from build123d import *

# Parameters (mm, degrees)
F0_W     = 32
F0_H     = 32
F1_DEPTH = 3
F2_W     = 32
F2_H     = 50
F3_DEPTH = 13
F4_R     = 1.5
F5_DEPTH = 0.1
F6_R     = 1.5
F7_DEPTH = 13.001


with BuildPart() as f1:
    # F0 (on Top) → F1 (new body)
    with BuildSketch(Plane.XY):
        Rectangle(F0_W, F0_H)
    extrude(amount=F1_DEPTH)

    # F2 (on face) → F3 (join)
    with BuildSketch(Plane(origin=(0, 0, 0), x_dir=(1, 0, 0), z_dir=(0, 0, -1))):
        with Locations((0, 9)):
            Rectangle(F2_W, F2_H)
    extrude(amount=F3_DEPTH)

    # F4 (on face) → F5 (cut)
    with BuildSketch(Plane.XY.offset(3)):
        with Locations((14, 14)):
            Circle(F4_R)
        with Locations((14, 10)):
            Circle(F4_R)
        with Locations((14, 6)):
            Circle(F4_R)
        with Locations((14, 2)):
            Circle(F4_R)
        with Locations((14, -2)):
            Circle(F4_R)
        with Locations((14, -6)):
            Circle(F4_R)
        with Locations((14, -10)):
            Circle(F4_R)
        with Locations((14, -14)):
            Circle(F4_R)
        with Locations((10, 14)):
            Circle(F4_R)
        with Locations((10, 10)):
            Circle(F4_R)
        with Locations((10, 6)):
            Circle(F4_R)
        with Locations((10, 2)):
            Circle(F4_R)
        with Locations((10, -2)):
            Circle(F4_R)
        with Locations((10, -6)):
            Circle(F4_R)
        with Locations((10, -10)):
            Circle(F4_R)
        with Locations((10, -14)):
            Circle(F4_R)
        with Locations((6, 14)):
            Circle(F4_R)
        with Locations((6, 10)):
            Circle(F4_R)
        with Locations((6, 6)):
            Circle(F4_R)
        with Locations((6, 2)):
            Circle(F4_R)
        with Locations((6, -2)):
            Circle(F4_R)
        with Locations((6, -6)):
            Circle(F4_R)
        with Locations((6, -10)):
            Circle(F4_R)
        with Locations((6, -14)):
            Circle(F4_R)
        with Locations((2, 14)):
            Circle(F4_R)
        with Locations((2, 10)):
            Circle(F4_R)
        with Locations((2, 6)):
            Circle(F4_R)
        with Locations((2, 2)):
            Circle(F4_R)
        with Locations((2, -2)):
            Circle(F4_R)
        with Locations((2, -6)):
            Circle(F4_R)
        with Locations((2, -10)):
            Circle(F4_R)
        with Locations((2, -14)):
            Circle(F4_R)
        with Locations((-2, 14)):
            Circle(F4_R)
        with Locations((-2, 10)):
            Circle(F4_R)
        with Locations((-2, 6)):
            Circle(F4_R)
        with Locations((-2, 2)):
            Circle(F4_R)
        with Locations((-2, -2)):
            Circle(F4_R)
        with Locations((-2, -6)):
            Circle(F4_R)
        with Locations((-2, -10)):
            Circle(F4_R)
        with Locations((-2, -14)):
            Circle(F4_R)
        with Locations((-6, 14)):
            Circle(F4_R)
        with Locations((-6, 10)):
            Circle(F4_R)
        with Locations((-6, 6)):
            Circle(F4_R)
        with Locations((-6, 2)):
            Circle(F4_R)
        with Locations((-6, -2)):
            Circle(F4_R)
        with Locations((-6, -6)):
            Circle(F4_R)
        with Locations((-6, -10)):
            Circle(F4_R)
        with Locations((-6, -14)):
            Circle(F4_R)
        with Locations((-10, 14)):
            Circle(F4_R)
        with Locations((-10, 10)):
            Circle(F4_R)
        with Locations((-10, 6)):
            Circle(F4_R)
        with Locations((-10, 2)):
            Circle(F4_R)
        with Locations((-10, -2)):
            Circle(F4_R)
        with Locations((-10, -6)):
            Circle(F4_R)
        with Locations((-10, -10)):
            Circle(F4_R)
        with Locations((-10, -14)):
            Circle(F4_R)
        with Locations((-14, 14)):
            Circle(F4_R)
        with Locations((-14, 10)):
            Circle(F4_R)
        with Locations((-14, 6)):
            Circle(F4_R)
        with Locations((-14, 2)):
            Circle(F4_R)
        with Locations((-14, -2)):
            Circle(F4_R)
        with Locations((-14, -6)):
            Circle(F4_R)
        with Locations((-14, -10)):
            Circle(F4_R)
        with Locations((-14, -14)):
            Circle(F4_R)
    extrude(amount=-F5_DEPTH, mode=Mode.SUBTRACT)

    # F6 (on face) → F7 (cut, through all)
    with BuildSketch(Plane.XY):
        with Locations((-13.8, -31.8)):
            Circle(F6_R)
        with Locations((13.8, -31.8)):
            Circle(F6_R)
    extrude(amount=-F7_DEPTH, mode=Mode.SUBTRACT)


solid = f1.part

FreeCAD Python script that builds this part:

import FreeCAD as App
import Part
import Sketcher
Q = App.Units.Quantity


def add_polygon(sketch, points):
    """Adds a closed chain of lines whose ends are joined by coincident constraints."""
    first, n = sketch.GeometryCount, len(points)
    for a, b in zip(points, points[1:] + points[:1]):
        sketch.addGeometry(Part.LineSegment(App.Vector(*a, 0), App.Vector(*b, 0)), False)
    for i in range(n):
        sketch.addConstraint(Sketcher.Constraint("Coincident", first + i, 2, first + (i + 1) % n, 1))

doc = App.newDocument("Part")
params = doc.addObject("Spreadsheet::Sheet", "Params")
for row, (alias, value) in enumerate([
    ("sketch1_width", "32 mm"),
    ("pad1_length", "3 mm"),
    ("sketch2_width", "32 mm"),
    ("sketch2_height", "50 mm"),
    ("pad2_length", "13 mm"),
    ("sketch3_diameter", "3 mm"),
    ("pocket1_length", "0.1 mm"),
    ("sketch4_diameter", "3 mm"),
], start=1):
    params.set(f"A{row}", alias)
    params.set(f"B{row}", "=" + value)
    params.setAlias(f"B{row}", alias)

body = doc.addObject("PartDesign::Body", "Body")

# Sketch on XY plane
sketch1 = body.newObject("Sketcher::SketchObject", "Sketch")
sketch1.AttachmentSupport = (doc.getObject("XY_Plane"), [""])
sketch1.MapMode = "FlatFace"
add_polygon(sketch1, [(-16, 16), (-16, -16), (16, -16), (16, 16)])  # lines 0-3
sketch1.addConstraint([
    Sketcher.Constraint("Vertical", 0),
    Sketcher.Constraint("Horizontal", 1),
    Sketcher.Constraint("Vertical", 2),
    Sketcher.Constraint("Horizontal", 3),
    Sketcher.Constraint("Symmetric", 0, 2, 2, 2, -1, 1),
    Sketcher.Constraint("Equal", 3, 0),
    Sketcher.Constraint("DistanceX", 1, 1, 1, 2, Q("32 mm")),
])
sketch1.setExpression("Constraints[10]", "Params.sketch1_width")
pad1 = body.newObject("PartDesign::Pad", "Pad")
pad1.Profile = sketch1
pad1.setExpression("Length", "Params.pad1_length")

# Sketch on XY plane
sketch2 = body.newObject("Sketcher::SketchObject", "Sketch001")
sketch2.AttachmentSupport = (doc.getObject("XY_Plane"), [""])
sketch2.MapMode = "FlatFace"
add_polygon(sketch2, [(-16, -34), (-16, 16), (16, 16), (16, -34)])  # lines 0-3
sketch2.addConstraint([
    Sketcher.Constraint("Vertical", 0),
    Sketcher.Constraint("Horizontal", 1),
    Sketcher.Constraint("Vertical", 2),
    Sketcher.Constraint("Horizontal", 3),
    Sketcher.Constraint("DistanceX", 1, 1, 1, 2, Q("32 mm")),
    Sketcher.Constraint("DistanceY", 0, 1, 0, 2, Q("50 mm")),
    Sketcher.Constraint("DistanceX", 0, 2, -1, 1, Q("16 mm")),
    Sketcher.Constraint("DistanceY", -1, 1, 0, 2, Q("16 mm")),
])
sketch2.setExpression("Constraints[8]", "Params.sketch2_width")
sketch2.setExpression("Constraints[9]", "Params.sketch2_height")
pad2 = body.newObject("PartDesign::Pad", "Pad001")
pad2.Profile = sketch2
pad2.setExpression("Length", "Params.pad2_length")
pad2.Reversed = True

# Sketch on XY plane
sketch3 = body.newObject("Sketcher::SketchObject", "Sketch002")
sketch3.AttachmentSupport = (doc.getObject("XY_Plane"), [""])
sketch3.MapMode = "FlatFace"
sketch3.AttachmentOffset = App.Placement(App.Vector(0, 0, 3), App.Rotation())
sketch3.addGeometry([
    Part.Circle(App.Vector(14, 14, 0), App.Vector(0, 0, 1), 1.5),  # 0
    Part.Circle(App.Vector(14, 10, 0), App.Vector(0, 0, 1), 1.5),  # 1
    Part.Circle(App.Vector(14, 6, 0), App.Vector(0, 0, 1), 1.5),  # 2
    Part.Circle(App.Vector(14, 2, 0), App.Vector(0, 0, 1), 1.5),  # 3
    Part.Circle(App.Vector(14, -2, 0), App.Vector(0, 0, 1), 1.5),  # 4
    Part.Circle(App.Vector(14, -6, 0), App.Vector(0, 0, 1), 1.5),  # 5
    Part.Circle(App.Vector(14, -10, 0), App.Vector(0, 0, 1), 1.5),  # 6
    Part.Circle(App.Vector(14, -14, 0), App.Vector(0, 0, 1), 1.5),  # 7
    Part.Circle(App.Vector(10, 14, 0), App.Vector(0, 0, 1), 1.5),  # 8
    Part.Circle(App.Vector(10, 10, 0), App.Vector(0, 0, 1), 1.5),  # 9
    Part.Circle(App.Vector(10, 6, 0), App.Vector(0, 0, 1), 1.5),  # 10
    Part.Circle(App.Vector(10, 2, 0), App.Vector(0, 0, 1), 1.5),  # 11
    Part.Circle(App.Vector(10, -2, 0), App.Vector(0, 0, 1), 1.5),  # 12
    Part.Circle(App.Vector(10, -6, 0), App.Vector(0, 0, 1), 1.5),  # 13
    Part.Circle(App.Vector(10, -10, 0), App.Vector(0, 0, 1), 1.5),  # 14
    Part.Circle(App.Vector(10, -14, 0), App.Vector(0, 0, 1), 1.5),  # 15
    Part.Circle(App.Vector(6, 14, 0), App.Vector(0, 0, 1), 1.5),  # 16
    Part.Circle(App.Vector(6, 10, 0), App.Vector(0, 0, 1), 1.5),  # 17
    Part.Circle(App.Vector(6, 6, 0), App.Vector(0, 0, 1), 1.5),  # 18
    Part.Circle(App.Vector(6, 2, 0), App.Vector(0, 0, 1), 1.5),  # 19
    Part.Circle(App.Vector(6, -2, 0), App.Vector(0, 0, 1), 1.5),  # 20
    Part.Circle(App.Vector(6, -6, 0), App.Vector(0, 0, 1), 1.5),  # 21
    Part.Circle(App.Vector(6, -10, 0), App.Vector(0, 0, 1), 1.5),  # 22
    Part.Circle(App.Vector(6, -14, 0), App.Vector(0, 0, 1), 1.5),  # 23
    Part.Circle(App.Vector(2, 14, 0), App.Vector(0, 0, 1), 1.5),  # 24
    Part.Circle(App.Vector(2, 10, 0), App.Vector(0, 0, 1), 1.5),  # 25
    Part.Circle(App.Vector(2, 6, 0), App.Vector(0, 0, 1), 1.5),  # 26
    Part.Circle(App.Vector(2, 2, 0), App.Vector(0, 0, 1), 1.5),  # 27
    Part.Circle(App.Vector(2, -2, 0), App.Vector(0, 0, 1), 1.5),  # 28
    Part.Circle(App.Vector(2, -6, 0), App.Vector(0, 0, 1), 1.5),  # 29
    Part.Circle(App.Vector(2, -10, 0), App.Vector(0, 0, 1), 1.5),  # 30
    Part.Circle(App.Vector(2, -14, 0), App.Vector(0, 0, 1), 1.5),  # 31
    Part.Circle(App.Vector(-2, 14, 0), App.Vector(0, 0, 1), 1.5),  # 32
    Part.Circle(App.Vector(-2, 10, 0), App.Vector(0, 0, 1), 1.5),  # 33
    Part.Circle(App.Vector(-2, 6, 0), App.Vector(0, 0, 1), 1.5),  # 34
    Part.Circle(App.Vector(-2, 2, 0), App.Vector(0, 0, 1), 1.5),  # 35
    Part.Circle(App.Vector(-2, -2, 0), App.Vector(0, 0, 1), 1.5),  # 36
    Part.Circle(App.Vector(-2, -6, 0), App.Vector(0, 0, 1), 1.5),  # 37
    Part.Circle(App.Vector(-2, -10, 0), App.Vector(0, 0, 1), 1.5),  # 38
    Part.Circle(App.Vector(-2, -14, 0), App.Vector(0, 0, 1), 1.5),  # 39
    Part.Circle(App.Vector(-6, 14, 0), App.Vector(0, 0, 1), 1.5),  # 40
    Part.Circle(App.Vector(-6, 10, 0), App.Vector(0, 0, 1), 1.5),  # 41
    Part.Circle(App.Vector(-6, 6, 0), App.Vector(0, 0, 1), 1.5),  # 42
    Part.Circle(App.Vector(-6, 2, 0), App.Vector(0, 0, 1), 1.5),  # 43
    Part.Circle(App.Vector(-6, -2, 0), App.Vector(0, 0, 1), 1.5),  # 44
    Part.Circle(App.Vector(-6, -6, 0), App.Vector(0, 0, 1), 1.5),  # 45
    Part.Circle(App.Vector(-6, -10, 0), App.Vector(0, 0, 1), 1.5),  # 46
    Part.Circle(App.Vector(-6, -14, 0), App.Vector(0, 0, 1), 1.5),  # 47
    Part.Circle(App.Vector(-10, 14, 0), App.Vector(0, 0, 1), 1.5),  # 48
    Part.Circle(App.Vector(-10, 10, 0), App.Vector(0, 0, 1), 1.5),  # 49
    Part.Circle(App.Vector(-10, 6, 0), App.Vector(0, 0, 1), 1.5),  # 50
    Part.Circle(App.Vector(-10, 2, 0), App.Vector(0, 0, 1), 1.5),  # 51
    Part.Circle(App.Vector(-10, -2, 0), App.Vector(0, 0, 1), 1.5),  # 52
    Part.Circle(App.Vector(-10, -6, 0), App.Vector(0, 0, 1), 1.5),  # 53
    Part.Circle(App.Vector(-10, -10, 0), App.Vector(0, 0, 1), 1.5),  # 54
    Part.Circle(App.Vector(-10, -14, 0), App.Vector(0, 0, 1), 1.5),  # 55
    Part.Circle(App.Vector(-14, 14, 0), App.Vector(0, 0, 1), 1.5),  # 56
    Part.Circle(App.Vector(-14, 10, 0), App.Vector(0, 0, 1), 1.5),  # 57
    Part.Circle(App.Vector(-14, 6, 0), App.Vector(0, 0, 1), 1.5),  # 58
    Part.Circle(App.Vector(-14, 2, 0), App.Vector(0, 0, 1), 1.5),  # 59
    Part.Circle(App.Vector(-14, -2, 0), App.Vector(0, 0, 1), 1.5),  # 60
    Part.Circle(App.Vector(-14, -6, 0), App.Vector(0, 0, 1), 1.5),  # 61
    Part.Circle(App.Vector(-14, -10, 0), App.Vector(0, 0, 1), 1.5),  # 62
    Part.Circle(App.Vector(-14, -14, 0), App.Vector(0, 0, 1), 1.5),  # 63
], False)
sketch3.addConstraint([
    Sketcher.Constraint("Equal", 0, 1),
    Sketcher.Constraint("Equal", 1, 2),
    Sketcher.Constraint("Equal", 2, 3),
    Sketcher.Constraint("Equal", 3, 4),
    Sketcher.Constraint("Equal", 4, 5),
    Sketcher.Constraint("Equal", 5, 6),
    Sketcher.Constraint("Equal", 6, 7),
    Sketcher.Constraint("Equal", 7, 8),
    Sketcher.Constraint("Equal", 8, 9),
    Sketcher.Constraint("Equal", 9, 10),
    Sketcher.Constraint("Equal", 10, 11),
    Sketcher.Constraint("Equal", 11, 12),
    Sketcher.Constraint("Equal", 12, 13),
    Sketcher.Constraint("Equal", 13, 14),
    Sketcher.Constraint("Equal", 14, 15),
    Sketcher.Constraint("Equal", 15, 16),
    Sketcher.Constraint("Equal", 16, 17),
    Sketcher.Constraint("Equal", 17, 18),
    Sketcher.Constraint("Equal", 18, 19),
    Sketcher.Constraint("Equal", 19, 20),
    Sketcher.Constraint("Equal", 20, 21),
    Sketcher.Constraint("Equal", 21, 22),
    Sketcher.Constraint("Equal", 22, 23),
    Sketcher.Constraint("Equal", 23, 24),
    Sketcher.Constraint("Equal", 24, 25),
    Sketcher.Constraint("Equal", 25, 26),
    Sketcher.Constraint("Equal", 26, 27),
    Sketcher.Constraint("Equal", 27, 28),
    Sketcher.Constraint("Equal", 28, 29),
    Sketcher.Constraint("Equal", 29, 30),
    Sketcher.Constraint("Equal", 30, 31),
    Sketcher.Constraint("Equal", 31, 32),
    Sketcher.Constraint("Equal", 32, 33),
    Sketcher.Constraint("Equal", 33, 34),
    Sketcher.Constraint("Equal", 34, 35),
    Sketcher.Constraint("Equal", 35, 36),
    Sketcher.Constraint("Equal", 36, 37),
    Sketcher.Constraint("Equal", 37, 38),
    Sketcher.Constraint("Equal", 38, 39),
    Sketcher.Constraint("Equal", 39, 40),
    Sketcher.Constraint("Equal", 40, 41),
    Sketcher.Constraint("Equal", 41, 42),
    Sketcher.Constraint("Equal", 42, 43),
    Sketcher.Constraint("Equal", 43, 44),
    Sketcher.Constraint("Equal", 44, 45),
    Sketcher.Constraint("Equal", 45, 46),
    Sketcher.Constraint("Equal", 46, 47),
    Sketcher.Constraint("Equal", 47, 48),
    Sketcher.Constraint("Equal", 48, 49),
    Sketcher.Constraint("Equal", 49, 50),
    Sketcher.Constraint("Equal", 50, 51),
    Sketcher.Constraint("Equal", 51, 52),
    Sketcher.Constraint("Equal", 52, 53),
    Sketcher.Constraint("Equal", 53, 54),
    Sketcher.Constraint("Equal", 54, 55),
    Sketcher.Constraint("Equal", 55, 56),
    Sketcher.Constraint("Equal", 56, 57),
    Sketcher.Constraint("Equal", 57, 58),
    Sketcher.Constraint("Equal", 58, 59),
    Sketcher.Constraint("Equal", 59, 60),
    Sketcher.Constraint("Equal", 60, 61),
    Sketcher.Constraint("Equal", 61, 62),
    Sketcher.Constraint("Equal", 62, 63),
    Sketcher.Constraint("Symmetric", 31, 3, 32, 3, -1, 1),
    Sketcher.Constraint("Symmetric", 30, 3, 33, 3, -1, 1),
    Sketcher.Constraint("Symmetric", 29, 3, 34, 3, -1, 1),
    Sketcher.Constraint("Symmetric", 28, 3, 35, 3, -1, 1),
    Sketcher.Constraint("Symmetric", 27, 3, 36, 3, -1, 1),
    Sketcher.Constraint("Symmetric", 26, 3, 37, 3, -1, 1),
    Sketcher.Constraint("Symmetric", 25, 3, 38, 3, -1, 1),
    Sketcher.Constraint("Symmetric", 24, 3, 39, 3, -1, 1),
    Sketcher.Constraint("Symmetric", 23, 3, 40, 3, -1, 1),
    Sketcher.Constraint("Symmetric", 22, 3, 41, 3, -1, 1),
    Sketcher.Constraint("Symmetric", 21, 3, 42, 3, -1, 1),
    Sketcher.Constraint("Symmetric", 20, 3, 43, 3, -1, 1),
    Sketcher.Constraint("Symmetric", 19, 3, 44, 3, -1, 1),
    Sketcher.Constraint("Symmetric", 18, 3, 45, 3, -1, 1),
    Sketcher.Constraint("Symmetric", 17, 3, 46, 3, -1, 1),
    Sketcher.Constraint("Symmetric", 16, 3, 47, 3, -1, 1),
    Sketcher.Constraint("Symmetric", 15, 3, 48, 3, -1, 1),
    Sketcher.Constraint("Symmetric", 14, 3, 49, 3, -1, 1),
    Sketcher.Constraint("Symmetric", 13, 3, 50, 3, -1, 1),
    Sketcher.Constraint("Symmetric", 12, 3, 51, 3, -1, 1),
    Sketcher.Constraint("Symmetric", 11, 3, 52, 3, -1, 1),
    Sketcher.Constraint("Symmetric", 10, 3, 53, 3, -1, 1),
    Sketcher.Constraint("Symmetric", 9, 3, 54, 3, -1, 1),
    Sketcher.Constraint("Symmetric", 8, 3, 55, 3, -1, 1),
    Sketcher.Constraint("Symmetric", 7, 3, 56, 3, -1, 1),
    Sketcher.Constraint("Symmetric", 6, 3, 57, 3, -1, 1),
    Sketcher.Constraint("Symmetric", 5, 3, 58, 3, -1, 1),
    Sketcher.Constraint("Symmetric", 4, 3, 59, 3, -1, 1),
    Sketcher.Constraint("Symmetric", 3, 3, 60, 3, -1, 1),
    Sketcher.Constraint("Symmetric", 2, 3, 61, 3, -1, 1),
    Sketcher.Constraint("Symmetric", 1, 3, 62, 3, -1, 1),
    Sketcher.Constraint("Symmetric", 0, 3, 63, 3, -1, 1),
    Sketcher.Constraint("Symmetric", 24, 3, 32, 3, -2),
    Sketcher.Constraint("Symmetric", 25, 3, 33, 3, -2),
    Sketcher.Constraint("Symmetric", 26, 3, 34, 3, -2),
    Sketcher.Constraint("Symmetric", 27, 3, 35, 3, -2),
    Sketcher.Constraint("Symmetric", 16, 3, 40, 3, -2),
    Sketcher.Constraint("Symmetric", 17, 3, 41, 3, -2),
    Sketcher.Constraint("Symmetric", 18, 3, 42, 3, -2),
    Sketcher.Constraint("Symmetric", 19, 3, 43, 3, -2),
    Sketcher.Constraint("Symmetric", 8, 3, 48, 3, -2),
    Sketcher.Constraint("Symmetric", 9, 3, 49, 3, -2),
    Sketcher.Constraint("Symmetric", 10, 3, 50, 3, -2),
    Sketcher.Constraint("Symmetric", 11, 3, 51, 3, -2),
    Sketcher.Constraint("Symmetric", 0, 3, 56, 3, -2),
    Sketcher.Constraint("Symmetric", 1, 3, 57, 3, -2),
    Sketcher.Constraint("Symmetric", 2, 3, 58, 3, -2),
    Sketcher.Constraint("Symmetric", 3, 3, 59, 3, -2),
    Sketcher.Constraint("Horizontal", 0, 3, 8, 3),
    Sketcher.Constraint("Horizontal", 1, 3, 9, 3),
    Sketcher.Constraint("Horizontal", 2, 3, 10, 3),
    Sketcher.Constraint("Horizontal", 3, 3, 11, 3),
    Sketcher.Constraint("Horizontal", 8, 3, 16, 3),
    Sketcher.Constraint("Horizontal", 9, 3, 17, 3),
    Sketcher.Constraint("Horizontal", 10, 3, 18, 3),
    Sketcher.Constraint("Horizontal", 11, 3, 19, 3),
    Sketcher.Constraint("Horizontal", 16, 3, 24, 3),
    Sketcher.Constraint("Horizontal", 17, 3, 25, 3),
    Sketcher.Constraint("Horizontal", 18, 3, 26, 3),
    Sketcher.Constraint("Horizontal", 19, 3, 27, 3),
    Sketcher.Constraint("Vertical", 0, 3, 1, 3),
    Sketcher.Constraint("Vertical", 1, 3, 2, 3),
    Sketcher.Constraint("Vertical", 2, 3, 3, 3),
    Sketcher.Constraint("Vertical", 8, 3, 9, 3),
    Sketcher.Constraint("Vertical", 9, 3, 10, 3),
    Sketcher.Constraint("Vertical", 10, 3, 11, 3),
    Sketcher.Constraint("Vertical", 16, 3, 17, 3),
    Sketcher.Constraint("Vertical", 17, 3, 18, 3),
    Sketcher.Constraint("Vertical", 18, 3, 19, 3),
    Sketcher.Constraint("Vertical", 24, 3, 25, 3),
    Sketcher.Constraint("Vertical", 25, 3, 26, 3),
    Sketcher.Constraint("Vertical", 26, 3, 27, 3),
    Sketcher.Constraint("Diameter", 0, Q("3 mm")),
    Sketcher.Constraint("DistanceX", -1, 1, 0, 3, Q("14 mm")),
    Sketcher.Constraint("DistanceY", -1, 1, 0, 3, Q("14 mm")),
    Sketcher.Constraint("DistanceY", -1, 1, 1, 3, Q("10 mm")),
    Sketcher.Constraint("DistanceY", -1, 1, 2, 3, Q("6 mm")),
    Sketcher.Constraint("DistanceY", -1, 1, 3, 3, Q("2 mm")),
    Sketcher.Constraint("DistanceX", -1, 1, 8, 3, Q("10 mm")),
    Sketcher.Constraint("DistanceX", -1, 1, 16, 3, Q("6 mm")),
    Sketcher.Constraint("DistanceX", -1, 1, 24, 3, Q("2 mm")),
])
sketch3.setExpression("Constraints[135]", "Params.sketch3_diameter")
pocket1 = body.newObject("PartDesign::Pocket", "Pocket")
pocket1.Profile = sketch3
pocket1.setExpression("Length", "Params.pocket1_length")

# Sketch on XY plane
sketch4 = body.newObject("Sketcher::SketchObject", "Sketch003")
sketch4.AttachmentSupport = (doc.getObject("XY_Plane"), [""])
sketch4.MapMode = "FlatFace"
sketch4.addGeometry([
    Part.Circle(App.Vector(-13.8, -31.8, 0), App.Vector(0, 0, 1), 1.5),
    Part.Circle(App.Vector(13.8, -31.8, 0), App.Vector(0, 0, 1), 1.5),
], False)
sketch4.addConstraint([
    Sketcher.Constraint("Equal", 0, 1),
    Sketcher.Constraint("Symmetric", 0, 3, 1, 3, -2),
    Sketcher.Constraint("Diameter", 0, Q("3 mm")),
    Sketcher.Constraint("DistanceX", 0, 3, -1, 1, Q("13.8 mm")),
    Sketcher.Constraint("DistanceY", 0, 3, -1, 1, Q("31.8 mm")),
])
sketch4.setExpression("Constraints[2]", "Params.sketch4_diameter")
pocket2 = body.newObject("PartDesign::Pocket", "Pocket001")
pocket2.Profile = sketch4
pocket2.Type = "ThroughAll"

doc.recompute()
